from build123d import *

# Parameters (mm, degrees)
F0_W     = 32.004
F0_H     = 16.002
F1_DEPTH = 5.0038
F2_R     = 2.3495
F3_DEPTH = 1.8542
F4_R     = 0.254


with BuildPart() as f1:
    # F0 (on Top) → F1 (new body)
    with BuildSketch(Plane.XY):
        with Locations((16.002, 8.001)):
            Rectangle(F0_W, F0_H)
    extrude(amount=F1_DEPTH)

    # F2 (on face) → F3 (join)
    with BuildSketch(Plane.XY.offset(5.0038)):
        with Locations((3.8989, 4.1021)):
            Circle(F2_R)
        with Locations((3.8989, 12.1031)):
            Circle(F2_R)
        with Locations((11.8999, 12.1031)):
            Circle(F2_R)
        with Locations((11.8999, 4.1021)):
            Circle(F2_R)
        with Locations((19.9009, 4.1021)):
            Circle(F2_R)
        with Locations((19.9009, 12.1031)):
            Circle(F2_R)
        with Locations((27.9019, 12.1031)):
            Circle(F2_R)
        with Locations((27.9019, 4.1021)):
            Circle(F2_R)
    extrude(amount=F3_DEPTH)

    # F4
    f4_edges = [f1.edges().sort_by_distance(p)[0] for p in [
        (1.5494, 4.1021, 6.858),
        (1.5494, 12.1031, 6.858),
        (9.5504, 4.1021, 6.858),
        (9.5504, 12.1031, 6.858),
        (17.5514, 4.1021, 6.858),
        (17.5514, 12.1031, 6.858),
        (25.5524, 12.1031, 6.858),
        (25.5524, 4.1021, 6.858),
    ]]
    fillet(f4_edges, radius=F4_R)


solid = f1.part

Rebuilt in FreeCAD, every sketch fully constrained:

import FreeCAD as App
import Part
import Sketcher
from FreeCAD import Vector
Q = App.Units.Quantity


def edges_at(feature, points):
    """Names of the edges that pass closest to the given points."""
    edges = feature.Shape.Edges
    near = lambda p: min(range(len(edges)), key=lambda i: edges[i].distToShape(Part.Vertex(*p))[0])
    return sorted({f"Edge{near(p) + 1}" for p in points})


def add_polygon(sketch, points):
    """Adds a closed chain of lines whose ends are joined by coincident constraints."""
    first, n = sketch.GeometryCount, len(points)
    for a, b in zip(points, points[1:] + points[:1]):
        sketch.addGeometry(Part.LineSegment(App.Vector(*a, 0), App.Vector(*b, 0)), False)
    for i in range(n):
        sketch.addConstraint(Sketcher.Constraint("Coincident", first + i, 2, first + (i + 1) % n, 1))

doc = App.newDocument("Part")
body = doc.addObject("PartDesign::Body", "Body")

# Sketch on XY plane
sketch1 = doc.addObject("Sketcher::SketchObject", "Sketch")
body.addObject(sketch1)
sketch1.AttachmentSupport = (doc.XY_Plane, [""])
sketch1.MapMode = "FlatFace"
add_polygon(sketch1, [(0, 16), (0, 0), (32, 0), (32, 16)])  # lines 0-3
sketch1.addConstraint([
    Sketcher.Constraint("Vertical", 0),
    Sketcher.Constraint("Horizontal", 1),
    Sketcher.Constraint("Vertical", 2),
    Sketcher.Constraint("Horizontal", 3),
    Sketcher.Constraint("Coincident", 0, 2, -1, 1),
    Sketcher.Constraint("DistanceX", 1, 1, 1, 2, Q("1.26 in")),
    Sketcher.Constraint("DistanceY", 0, 2, 0, 1, Q("0.63 in")),
])
pad1 = doc.addObject("PartDesign::Pad", "Pad")
body.addObject(pad1)
pad1.Profile = sketch1
pad1.Length = Q("0.197 in")

# Sketch on XY plane
sketch2 = doc.addObject("Sketcher::SketchObject", "Sketch001")
body.addObject(sketch2)
sketch2.AttachmentSupport = (doc.XY_Plane, [""])
sketch2.MapMode = "FlatFace"
sketch2.AttachmentOffset = App.Placement(Vector(0, 0, 0.197 * 25.4), App.Rotation())
sketch2.addGeometry([
    Part.Circle(Vector(3.9, 4.1, 0), Vector(0, 0, 1), 2.3),  # 0
    Part.Circle(Vector(3.9, 12.1, 0), Vector(0, 0, 1), 2.3),  # 1
    Part.Circle(Vector(11.9, 12.1, 0), Vector(0, 0, 1), 2.3),  # 2
    Part.Circle(Vector(11.9, 4.1, 0), Vector(0, 0, 1), 2.3),  # 3
    Part.Circle(Vector(19.9, 4.1, 0), Vector(0, 0, 1), 2.3),  # 4
    Part.Circle(Vector(19.9, 12.1, 0), Vector(0, 0, 1), 2.3),  # 5
    Part.Circle(Vector(27.9, 12.1, 0), Vector(0, 0, 1), 2.3),  # 6
    Part.Circle(Vector(27.9, 4.1, 0), Vector(0, 0, 1), 2.3),  # 7
], False)
sketch2.addConstraint([
    Sketcher.Constraint("Equal", 0, 1),
    Sketcher.Constraint("Equal", 1, 2),
    Sketcher.Constraint("Equal", 2, 3),
    Sketcher.Constraint("Equal", 3, 4),
    Sketcher.Constraint("Equal", 4, 5),
    Sketcher.Constraint("Equal", 5, 6),
    Sketcher.Constraint("Equal", 6, 7),
    Sketcher.Constraint("Horizontal", 1, 3, 2, 3),
    Sketcher.Constraint("Horizontal", 0, 3, 3, 3),
    Sketcher.Constraint("Horizontal", 3, 3, 4, 3),
    Sketcher.Constraint("Horizontal", 2, 3, 5, 3),
    Sketcher.Constraint("Horizontal", 5, 3, 6, 3),
    Sketcher.Constraint("Horizontal", 4, 3, 7, 3),
    Sketcher.Constraint("Vertical", 0, 3, 1, 3),
    Sketcher.Constraint("Vertical", 2, 3, 3, 3),
    Sketcher.Constraint("Vertical", 4, 3, 5, 3),
    Sketcher.Constraint("Vertical", 6, 3, 7, 3),
    Sketcher.Constraint("Diameter", 0, Q("0.185 in")),
    Sketcher.Constraint("DistanceX", 0, 3, 4, 3, Q("0.63 in")),
    Sketcher.Constraint("DistanceX", 2, 3, 6, 3, Q("0.63 in")),
    Sketcher.Constraint("DistanceY", 0, 3, 1, 3, Q("0.315 in")),
    Sketcher.Constraint("DistanceX", 1, 3, 2, 3, Q("0.315 in")),
    Sketcher.Constraint("DistanceX", -1, 1, 0, 3, Q("0.1535 in")),
    Sketcher.Constraint("DistanceY", -1, 1, 0, 3, Q("0.1615 in")),
])
pad2 = doc.addObject("PartDesign::Pad", "Pad001")
body.addObject(pad2)
pad2.Profile = sketch2
pad2.Length = Q("0.073 in")
doc.recompute()

fillet = doc.addObject("PartDesign::Fillet", "Fillet")
body.addObject(fillet)
fillet.Base = (pad2, edges_at(pad2, [
    (1.549, 4.102, 6.858),
    (1.549, 12.103, 6.858),
    (9.55, 4.102, 6.858),
    (9.55, 12.103, 6.858),
    (17.551, 4.102, 6.858),
    (17.551, 12.103, 6.858),
    (25.552, 12.103, 6.858),
    (25.552, 4.102, 6.858),
]))
fillet.Radius = Q("0.01 in")

doc.recompute()
